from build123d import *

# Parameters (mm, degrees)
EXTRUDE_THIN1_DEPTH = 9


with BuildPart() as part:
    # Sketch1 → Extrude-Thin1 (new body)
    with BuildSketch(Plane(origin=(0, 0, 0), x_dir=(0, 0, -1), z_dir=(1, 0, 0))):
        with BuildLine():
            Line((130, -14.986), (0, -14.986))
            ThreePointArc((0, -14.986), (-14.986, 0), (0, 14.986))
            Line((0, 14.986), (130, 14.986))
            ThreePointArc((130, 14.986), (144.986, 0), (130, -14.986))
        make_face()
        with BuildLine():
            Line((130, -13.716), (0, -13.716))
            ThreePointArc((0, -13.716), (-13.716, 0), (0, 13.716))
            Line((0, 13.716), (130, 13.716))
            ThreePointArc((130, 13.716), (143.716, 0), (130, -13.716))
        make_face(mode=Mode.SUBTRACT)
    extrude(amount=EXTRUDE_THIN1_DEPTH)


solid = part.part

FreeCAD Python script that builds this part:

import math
import FreeCAD as App
import Part
import Sketcher

V = App.Vector
Q = App.Units.Quantity

doc = App.newDocument("Part")
body = doc.addObject("PartDesign::Body", "Body")

# Sketch on YZ plane
sketch1 = doc.addObject("Sketcher::SketchObject", "Sketch")
body.addObject(sketch1)
sketch1.AttachmentSupport = (doc.YZ_Plane, [""])
sketch1.MapMode = "FlatFace"
sketch1.addGeometry([
    Part.LineSegment(V(-15, 0, 0), V(-15, -130, 0)),  # 0
    Part.ArcOfCircle(Part.Circle(V(0, -130, 0), V(0, 0, 1), 15), math.radians(180), math.radians(360)),  # 1
    Part.LineSegment(V(15, -130, 0), V(15, 0, 0)),  # 2
    Part.ArcOfCircle(Part.Circle(V(0, 0, 0), V(0, 0, 1), 15), math.radians(0), math.radians(180)),  # 3
    Part.LineSegment(V(-14, -130, 0), V(-14, 0, 0)),  # 4
    Part.ArcOfCircle(Part.Circle(V(0, 0, 0), V(0, 0, 1), 14), math.radians(0), math.radians(180)),  # 5
    Part.LineSegment(V(14, 0, 0), V(14, -130, 0)),  # 6
    Part.ArcOfCircle(Part.Circle(V(0, -130, 0), V(0, 0, 1), 14), math.radians(180), math.radians(360)),  # 7
], False)
sketch1.addConstraint([
    Sketcher.Constraint("Tangent", 0, 2, 1, 1),
    Sketcher.Constraint("Tangent", 1, 2, 2, 1),
    Sketcher.Constraint("Tangent", 2, 2, 3, 1),
    Sketcher.Constraint("Tangent", 3, 2, 0, 1),
    Sketcher.Constraint("Tangent", 4, 2, 5, 2),
    Sketcher.Constraint("Tangent", 5, 1, 6, 1),
    Sketcher.Constraint("Tangent", 6, 2, 7, 2),
    Sketcher.Constraint("Tangent", 7, 1, 4, 1),
    Sketcher.Constraint("Vertical", 0),
    Sketcher.Constraint("Vertical", 2),
    Sketcher.Constraint("Vertical", 4),
    Sketcher.Constraint("Vertical", 6),
    Sketcher.Constraint("Coincident", 3, 3, -1, 1),
    Sketcher.Constraint("Coincident", 5, 3, -1, 1),
    Sketcher.Constraint("Horizontal", 7, 3, 0, 2),
    Sketcher.Constraint("DistanceY", 0, 2, 0, 1, Q("130 mm")),
    Sketcher.Constraint("Radius", 1, Q("14.986 mm")),
    Sketcher.Constraint("Radius", 5, Q("13.716 mm")),
])
pad1 = doc.addObject("PartDesign::Pad", "Pad")
body.addObject(pad1)
pad1.Profile = sketch1
pad1.Length = 9

doc.recompute()
